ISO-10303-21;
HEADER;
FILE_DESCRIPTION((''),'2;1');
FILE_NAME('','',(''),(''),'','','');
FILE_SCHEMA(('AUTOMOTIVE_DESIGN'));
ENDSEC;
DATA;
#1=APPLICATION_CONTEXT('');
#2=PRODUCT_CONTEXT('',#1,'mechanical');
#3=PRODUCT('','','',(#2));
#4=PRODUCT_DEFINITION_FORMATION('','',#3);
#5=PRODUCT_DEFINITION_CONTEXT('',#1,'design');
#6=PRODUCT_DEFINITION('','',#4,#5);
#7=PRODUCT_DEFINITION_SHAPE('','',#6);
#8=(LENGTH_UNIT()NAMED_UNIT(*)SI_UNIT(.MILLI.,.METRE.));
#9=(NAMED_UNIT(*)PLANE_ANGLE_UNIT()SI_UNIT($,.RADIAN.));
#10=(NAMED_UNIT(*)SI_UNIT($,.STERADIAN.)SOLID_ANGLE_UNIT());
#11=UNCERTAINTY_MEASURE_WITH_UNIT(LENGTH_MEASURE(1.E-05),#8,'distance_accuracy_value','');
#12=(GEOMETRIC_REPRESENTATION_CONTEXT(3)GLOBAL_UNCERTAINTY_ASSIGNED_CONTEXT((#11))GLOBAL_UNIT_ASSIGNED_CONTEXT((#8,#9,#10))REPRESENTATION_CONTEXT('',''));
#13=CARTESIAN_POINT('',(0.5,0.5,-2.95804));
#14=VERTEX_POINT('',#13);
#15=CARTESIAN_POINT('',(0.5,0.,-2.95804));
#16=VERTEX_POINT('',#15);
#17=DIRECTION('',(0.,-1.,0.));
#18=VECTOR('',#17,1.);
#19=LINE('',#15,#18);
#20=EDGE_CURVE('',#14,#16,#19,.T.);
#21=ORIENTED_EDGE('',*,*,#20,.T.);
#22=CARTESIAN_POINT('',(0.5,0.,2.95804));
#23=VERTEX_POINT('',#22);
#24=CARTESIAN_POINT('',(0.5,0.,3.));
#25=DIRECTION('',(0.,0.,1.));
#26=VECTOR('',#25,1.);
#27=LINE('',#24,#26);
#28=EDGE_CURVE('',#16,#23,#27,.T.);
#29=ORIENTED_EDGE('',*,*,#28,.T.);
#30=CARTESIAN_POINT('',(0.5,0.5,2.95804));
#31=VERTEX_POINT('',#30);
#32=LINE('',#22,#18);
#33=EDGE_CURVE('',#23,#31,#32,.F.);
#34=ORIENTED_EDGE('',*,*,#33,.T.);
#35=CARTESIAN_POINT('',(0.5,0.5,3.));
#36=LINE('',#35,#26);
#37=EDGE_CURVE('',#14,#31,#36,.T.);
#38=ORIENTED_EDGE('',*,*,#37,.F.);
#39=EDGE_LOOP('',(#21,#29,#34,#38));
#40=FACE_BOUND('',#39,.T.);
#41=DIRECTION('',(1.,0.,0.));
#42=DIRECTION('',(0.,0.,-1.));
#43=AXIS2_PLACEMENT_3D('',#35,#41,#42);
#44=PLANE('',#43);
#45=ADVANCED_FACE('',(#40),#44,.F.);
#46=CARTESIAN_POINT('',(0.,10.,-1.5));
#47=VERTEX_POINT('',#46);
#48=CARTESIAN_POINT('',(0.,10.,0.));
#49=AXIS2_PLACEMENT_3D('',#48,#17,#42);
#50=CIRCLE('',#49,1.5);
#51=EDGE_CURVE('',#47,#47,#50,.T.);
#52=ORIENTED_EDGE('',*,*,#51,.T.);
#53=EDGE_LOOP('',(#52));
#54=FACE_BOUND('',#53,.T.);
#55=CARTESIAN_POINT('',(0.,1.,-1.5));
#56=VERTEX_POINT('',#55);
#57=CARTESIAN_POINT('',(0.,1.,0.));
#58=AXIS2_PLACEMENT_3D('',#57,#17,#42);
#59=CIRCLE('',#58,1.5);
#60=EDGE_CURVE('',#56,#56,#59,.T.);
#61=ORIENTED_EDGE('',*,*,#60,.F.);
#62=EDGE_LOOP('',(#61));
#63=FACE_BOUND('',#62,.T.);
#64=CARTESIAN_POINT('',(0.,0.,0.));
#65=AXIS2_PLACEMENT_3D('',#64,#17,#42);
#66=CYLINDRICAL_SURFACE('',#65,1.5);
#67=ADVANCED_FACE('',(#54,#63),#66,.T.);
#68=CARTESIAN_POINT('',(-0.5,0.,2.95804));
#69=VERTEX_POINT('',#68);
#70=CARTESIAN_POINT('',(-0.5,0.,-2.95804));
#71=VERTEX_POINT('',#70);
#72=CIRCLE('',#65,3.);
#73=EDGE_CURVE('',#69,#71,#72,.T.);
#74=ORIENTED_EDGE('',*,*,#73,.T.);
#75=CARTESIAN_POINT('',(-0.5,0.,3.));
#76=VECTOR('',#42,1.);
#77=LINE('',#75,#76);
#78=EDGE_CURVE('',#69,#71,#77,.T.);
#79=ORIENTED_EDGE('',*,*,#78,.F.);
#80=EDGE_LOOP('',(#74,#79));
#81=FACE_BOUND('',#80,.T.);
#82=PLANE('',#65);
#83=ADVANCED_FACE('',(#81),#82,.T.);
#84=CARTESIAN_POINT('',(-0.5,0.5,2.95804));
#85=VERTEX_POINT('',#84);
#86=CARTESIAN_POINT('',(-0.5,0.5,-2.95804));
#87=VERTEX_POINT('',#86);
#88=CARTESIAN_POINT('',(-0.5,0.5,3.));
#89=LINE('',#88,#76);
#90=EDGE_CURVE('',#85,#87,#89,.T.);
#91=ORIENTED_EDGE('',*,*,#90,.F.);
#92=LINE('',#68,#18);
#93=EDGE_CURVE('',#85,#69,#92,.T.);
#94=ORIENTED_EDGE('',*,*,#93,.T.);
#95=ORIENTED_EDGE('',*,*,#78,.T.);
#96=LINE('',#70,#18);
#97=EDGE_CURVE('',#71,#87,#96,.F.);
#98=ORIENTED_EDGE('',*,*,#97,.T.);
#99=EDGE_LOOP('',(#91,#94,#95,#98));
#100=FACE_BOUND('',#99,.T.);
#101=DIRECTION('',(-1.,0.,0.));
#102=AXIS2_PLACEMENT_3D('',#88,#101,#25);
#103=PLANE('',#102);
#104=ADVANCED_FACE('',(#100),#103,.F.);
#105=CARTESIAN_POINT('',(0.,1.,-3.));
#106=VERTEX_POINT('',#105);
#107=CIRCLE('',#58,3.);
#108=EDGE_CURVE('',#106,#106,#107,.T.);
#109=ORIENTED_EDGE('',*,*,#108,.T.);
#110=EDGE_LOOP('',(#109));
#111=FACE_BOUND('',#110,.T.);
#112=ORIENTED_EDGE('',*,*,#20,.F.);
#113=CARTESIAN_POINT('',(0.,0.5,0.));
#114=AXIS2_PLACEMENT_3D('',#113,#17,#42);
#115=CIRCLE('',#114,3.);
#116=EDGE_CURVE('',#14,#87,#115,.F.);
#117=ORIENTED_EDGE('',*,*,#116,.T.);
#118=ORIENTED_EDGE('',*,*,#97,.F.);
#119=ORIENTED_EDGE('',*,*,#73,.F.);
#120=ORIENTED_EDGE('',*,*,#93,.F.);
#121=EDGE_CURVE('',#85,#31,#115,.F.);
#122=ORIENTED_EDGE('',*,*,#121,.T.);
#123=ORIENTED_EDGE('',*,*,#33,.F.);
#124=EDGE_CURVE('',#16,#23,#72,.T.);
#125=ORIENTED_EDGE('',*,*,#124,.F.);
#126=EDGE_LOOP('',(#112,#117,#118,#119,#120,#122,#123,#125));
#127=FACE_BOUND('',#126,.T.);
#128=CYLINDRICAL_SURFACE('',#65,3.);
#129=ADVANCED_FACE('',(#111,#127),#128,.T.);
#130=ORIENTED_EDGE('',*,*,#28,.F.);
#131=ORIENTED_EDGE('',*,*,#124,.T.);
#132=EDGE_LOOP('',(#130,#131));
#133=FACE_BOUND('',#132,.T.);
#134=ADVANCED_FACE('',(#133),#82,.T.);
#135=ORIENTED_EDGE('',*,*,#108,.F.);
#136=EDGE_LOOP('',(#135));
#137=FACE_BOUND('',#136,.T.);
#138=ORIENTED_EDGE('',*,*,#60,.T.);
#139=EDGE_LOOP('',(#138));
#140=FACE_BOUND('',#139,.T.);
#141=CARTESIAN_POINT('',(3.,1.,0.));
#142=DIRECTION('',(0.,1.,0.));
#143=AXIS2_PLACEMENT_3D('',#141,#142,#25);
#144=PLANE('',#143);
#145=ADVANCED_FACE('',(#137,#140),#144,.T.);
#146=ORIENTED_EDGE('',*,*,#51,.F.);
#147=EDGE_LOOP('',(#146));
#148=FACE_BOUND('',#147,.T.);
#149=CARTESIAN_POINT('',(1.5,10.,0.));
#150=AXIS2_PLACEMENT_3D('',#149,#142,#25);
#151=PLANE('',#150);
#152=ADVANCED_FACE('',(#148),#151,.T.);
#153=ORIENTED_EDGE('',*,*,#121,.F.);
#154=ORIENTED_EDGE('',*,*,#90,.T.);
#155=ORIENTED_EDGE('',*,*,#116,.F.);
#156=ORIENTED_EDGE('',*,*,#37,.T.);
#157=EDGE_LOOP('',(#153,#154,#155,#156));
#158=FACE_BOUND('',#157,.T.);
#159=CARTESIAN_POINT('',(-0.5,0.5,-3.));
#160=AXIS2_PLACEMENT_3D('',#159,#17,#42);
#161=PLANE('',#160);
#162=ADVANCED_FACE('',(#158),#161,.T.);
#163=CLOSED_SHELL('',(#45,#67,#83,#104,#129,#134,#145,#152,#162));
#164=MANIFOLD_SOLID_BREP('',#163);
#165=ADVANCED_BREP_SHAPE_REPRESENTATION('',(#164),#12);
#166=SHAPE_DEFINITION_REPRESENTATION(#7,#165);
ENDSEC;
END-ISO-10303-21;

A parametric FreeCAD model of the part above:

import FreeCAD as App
import Part
import Sketcher
Q = App.Units.Quantity


def add_polygon(sketch, points):
    """Adds a closed chain of lines whose ends are joined by coincident constraints."""
    first, n = sketch.GeometryCount, len(points)
    for a, b in zip(points, points[1:] + points[:1]):
        sketch.addGeometry(Part.LineSegment(App.Vector(*a, 0), App.Vector(*b, 0)), False)
    for i in range(n):
        sketch.addConstraint(Sketcher.Constraint("Coincident", first + i, 2, first + (i + 1) % n, 1))

doc = App.newDocument("Part")
body = doc.addObject("PartDesign::Body", "Body")

# Sketch on XY plane
sketch1 = body.newObject("Sketcher::SketchObject", "Sketch")
sketch1.AttachmentSupport = (doc.getObject("XY_Plane"), [""])
sketch1.MapMode = "FlatFace"
add_polygon(sketch1, [(0, 0), (3, 0), (3, 1), (1.5, 1), (1.5, 10), (0, 10)])  # lines 0-5
sketch1.addConstraint([
    Sketcher.Constraint("Horizontal", 0),
    Sketcher.Constraint("Vertical", 1),
    Sketcher.Constraint("Horizontal", 2),
    Sketcher.Constraint("Vertical", 3),
    Sketcher.Constraint("Horizontal", 4),
    Sketcher.Constraint("Vertical", 5),
    Sketcher.Constraint("Coincident", 5, 2, -1, 1),
    Sketcher.Constraint("Equal", 2, 4),
    Sketcher.Constraint("DistanceX", 0, 1, 0, 2, Q("3 mm")),
    Sketcher.Constraint("DistanceY", 1, 1, 1, 2, Q("1 mm")),
    Sketcher.Constraint("DistanceY", 3, 1, 3, 2, Q("9 mm")),
])
revolution = body.newObject("PartDesign::Revolution", "Revolution")
revolution.Profile = sketch1
revolution.ReferenceAxis = (sketch1, ["V_Axis"])
revolution.Angle = 360

# Sketch on XZ plane
sketch2 = body.newObject("Sketcher::SketchObject", "Sketch001")
sketch2.AttachmentSupport = (doc.getObject("XZ_Plane"), [""])
sketch2.MapMode = "FlatFace"
add_polygon(sketch2, [(-0.5, 3), (-0.5, -3), (0.5, -3), (0.5, 3)])  # lines 0-3
sketch2.addConstraint([
    Sketcher.Constraint("Vertical", 0),
    Sketcher.Constraint("Horizontal", 1),
    Sketcher.Constraint("Vertical", 2),
    Sketcher.Constraint("Horizontal", 3),
    Sketcher.Constraint("Symmetric", 0, 2, 2, 2, -1, 1),
    Sketcher.Constraint("DistanceX", 1, 1, 1, 2, Q("1 mm")),
    Sketcher.Constraint("DistanceY", 0, 2, 0, 1, Q("6 mm")),
])
pocket1 = body.newObject("PartDesign::Pocket", "Pocket")
pocket1.Profile = sketch2
pocket1.Length = 0.5

doc.recompute()
